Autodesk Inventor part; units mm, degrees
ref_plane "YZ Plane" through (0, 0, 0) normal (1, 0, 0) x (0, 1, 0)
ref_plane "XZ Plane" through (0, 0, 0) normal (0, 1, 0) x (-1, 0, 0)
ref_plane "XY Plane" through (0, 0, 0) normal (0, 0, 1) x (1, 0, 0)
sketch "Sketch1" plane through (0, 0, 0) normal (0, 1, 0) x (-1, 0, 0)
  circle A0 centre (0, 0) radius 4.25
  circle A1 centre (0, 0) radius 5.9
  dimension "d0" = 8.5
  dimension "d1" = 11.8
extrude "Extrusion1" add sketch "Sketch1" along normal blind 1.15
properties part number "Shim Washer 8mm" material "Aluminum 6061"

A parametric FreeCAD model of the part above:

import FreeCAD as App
import Part
import Sketcher
Q = App.Units.Quantity

doc = App.newDocument("Part")
body = doc.addObject("PartDesign::Body", "Body")

# Sketch on XZ plane
sketch1 = body.newObject("Sketcher::SketchObject", "Sketch")
sketch1.AttachmentSupport = (doc.getObject("XZ_Plane"), [""])
sketch1.MapMode = "FlatFace"
sketch1.addGeometry(Part.Circle(App.Vector(0, 0, 0), App.Vector(0, 0, 1), 5.9), False)
sketch1.addGeometry(Part.Circle(App.Vector(0, 0, 0), App.Vector(0, 0, 1), 4.2), False)
sketch1.addConstraint(Sketcher.Constraint("Coincident", 0, 3, -1, 1))
sketch1.addConstraint(Sketcher.Constraint("Coincident", 1, 3, -1, 1))
sketch1.addConstraint(Sketcher.Constraint("Diameter", 0, Q("11.8 mm")))
sketch1.addConstraint(Sketcher.Constraint("Diameter", 1, Q("8.5 mm")))
pad1 = body.newObject("PartDesign::Pad", "Pad")
pad1.Profile = sketch1
pad1.Length = 1.15
pad1.Reversed = True

doc.recompute()
